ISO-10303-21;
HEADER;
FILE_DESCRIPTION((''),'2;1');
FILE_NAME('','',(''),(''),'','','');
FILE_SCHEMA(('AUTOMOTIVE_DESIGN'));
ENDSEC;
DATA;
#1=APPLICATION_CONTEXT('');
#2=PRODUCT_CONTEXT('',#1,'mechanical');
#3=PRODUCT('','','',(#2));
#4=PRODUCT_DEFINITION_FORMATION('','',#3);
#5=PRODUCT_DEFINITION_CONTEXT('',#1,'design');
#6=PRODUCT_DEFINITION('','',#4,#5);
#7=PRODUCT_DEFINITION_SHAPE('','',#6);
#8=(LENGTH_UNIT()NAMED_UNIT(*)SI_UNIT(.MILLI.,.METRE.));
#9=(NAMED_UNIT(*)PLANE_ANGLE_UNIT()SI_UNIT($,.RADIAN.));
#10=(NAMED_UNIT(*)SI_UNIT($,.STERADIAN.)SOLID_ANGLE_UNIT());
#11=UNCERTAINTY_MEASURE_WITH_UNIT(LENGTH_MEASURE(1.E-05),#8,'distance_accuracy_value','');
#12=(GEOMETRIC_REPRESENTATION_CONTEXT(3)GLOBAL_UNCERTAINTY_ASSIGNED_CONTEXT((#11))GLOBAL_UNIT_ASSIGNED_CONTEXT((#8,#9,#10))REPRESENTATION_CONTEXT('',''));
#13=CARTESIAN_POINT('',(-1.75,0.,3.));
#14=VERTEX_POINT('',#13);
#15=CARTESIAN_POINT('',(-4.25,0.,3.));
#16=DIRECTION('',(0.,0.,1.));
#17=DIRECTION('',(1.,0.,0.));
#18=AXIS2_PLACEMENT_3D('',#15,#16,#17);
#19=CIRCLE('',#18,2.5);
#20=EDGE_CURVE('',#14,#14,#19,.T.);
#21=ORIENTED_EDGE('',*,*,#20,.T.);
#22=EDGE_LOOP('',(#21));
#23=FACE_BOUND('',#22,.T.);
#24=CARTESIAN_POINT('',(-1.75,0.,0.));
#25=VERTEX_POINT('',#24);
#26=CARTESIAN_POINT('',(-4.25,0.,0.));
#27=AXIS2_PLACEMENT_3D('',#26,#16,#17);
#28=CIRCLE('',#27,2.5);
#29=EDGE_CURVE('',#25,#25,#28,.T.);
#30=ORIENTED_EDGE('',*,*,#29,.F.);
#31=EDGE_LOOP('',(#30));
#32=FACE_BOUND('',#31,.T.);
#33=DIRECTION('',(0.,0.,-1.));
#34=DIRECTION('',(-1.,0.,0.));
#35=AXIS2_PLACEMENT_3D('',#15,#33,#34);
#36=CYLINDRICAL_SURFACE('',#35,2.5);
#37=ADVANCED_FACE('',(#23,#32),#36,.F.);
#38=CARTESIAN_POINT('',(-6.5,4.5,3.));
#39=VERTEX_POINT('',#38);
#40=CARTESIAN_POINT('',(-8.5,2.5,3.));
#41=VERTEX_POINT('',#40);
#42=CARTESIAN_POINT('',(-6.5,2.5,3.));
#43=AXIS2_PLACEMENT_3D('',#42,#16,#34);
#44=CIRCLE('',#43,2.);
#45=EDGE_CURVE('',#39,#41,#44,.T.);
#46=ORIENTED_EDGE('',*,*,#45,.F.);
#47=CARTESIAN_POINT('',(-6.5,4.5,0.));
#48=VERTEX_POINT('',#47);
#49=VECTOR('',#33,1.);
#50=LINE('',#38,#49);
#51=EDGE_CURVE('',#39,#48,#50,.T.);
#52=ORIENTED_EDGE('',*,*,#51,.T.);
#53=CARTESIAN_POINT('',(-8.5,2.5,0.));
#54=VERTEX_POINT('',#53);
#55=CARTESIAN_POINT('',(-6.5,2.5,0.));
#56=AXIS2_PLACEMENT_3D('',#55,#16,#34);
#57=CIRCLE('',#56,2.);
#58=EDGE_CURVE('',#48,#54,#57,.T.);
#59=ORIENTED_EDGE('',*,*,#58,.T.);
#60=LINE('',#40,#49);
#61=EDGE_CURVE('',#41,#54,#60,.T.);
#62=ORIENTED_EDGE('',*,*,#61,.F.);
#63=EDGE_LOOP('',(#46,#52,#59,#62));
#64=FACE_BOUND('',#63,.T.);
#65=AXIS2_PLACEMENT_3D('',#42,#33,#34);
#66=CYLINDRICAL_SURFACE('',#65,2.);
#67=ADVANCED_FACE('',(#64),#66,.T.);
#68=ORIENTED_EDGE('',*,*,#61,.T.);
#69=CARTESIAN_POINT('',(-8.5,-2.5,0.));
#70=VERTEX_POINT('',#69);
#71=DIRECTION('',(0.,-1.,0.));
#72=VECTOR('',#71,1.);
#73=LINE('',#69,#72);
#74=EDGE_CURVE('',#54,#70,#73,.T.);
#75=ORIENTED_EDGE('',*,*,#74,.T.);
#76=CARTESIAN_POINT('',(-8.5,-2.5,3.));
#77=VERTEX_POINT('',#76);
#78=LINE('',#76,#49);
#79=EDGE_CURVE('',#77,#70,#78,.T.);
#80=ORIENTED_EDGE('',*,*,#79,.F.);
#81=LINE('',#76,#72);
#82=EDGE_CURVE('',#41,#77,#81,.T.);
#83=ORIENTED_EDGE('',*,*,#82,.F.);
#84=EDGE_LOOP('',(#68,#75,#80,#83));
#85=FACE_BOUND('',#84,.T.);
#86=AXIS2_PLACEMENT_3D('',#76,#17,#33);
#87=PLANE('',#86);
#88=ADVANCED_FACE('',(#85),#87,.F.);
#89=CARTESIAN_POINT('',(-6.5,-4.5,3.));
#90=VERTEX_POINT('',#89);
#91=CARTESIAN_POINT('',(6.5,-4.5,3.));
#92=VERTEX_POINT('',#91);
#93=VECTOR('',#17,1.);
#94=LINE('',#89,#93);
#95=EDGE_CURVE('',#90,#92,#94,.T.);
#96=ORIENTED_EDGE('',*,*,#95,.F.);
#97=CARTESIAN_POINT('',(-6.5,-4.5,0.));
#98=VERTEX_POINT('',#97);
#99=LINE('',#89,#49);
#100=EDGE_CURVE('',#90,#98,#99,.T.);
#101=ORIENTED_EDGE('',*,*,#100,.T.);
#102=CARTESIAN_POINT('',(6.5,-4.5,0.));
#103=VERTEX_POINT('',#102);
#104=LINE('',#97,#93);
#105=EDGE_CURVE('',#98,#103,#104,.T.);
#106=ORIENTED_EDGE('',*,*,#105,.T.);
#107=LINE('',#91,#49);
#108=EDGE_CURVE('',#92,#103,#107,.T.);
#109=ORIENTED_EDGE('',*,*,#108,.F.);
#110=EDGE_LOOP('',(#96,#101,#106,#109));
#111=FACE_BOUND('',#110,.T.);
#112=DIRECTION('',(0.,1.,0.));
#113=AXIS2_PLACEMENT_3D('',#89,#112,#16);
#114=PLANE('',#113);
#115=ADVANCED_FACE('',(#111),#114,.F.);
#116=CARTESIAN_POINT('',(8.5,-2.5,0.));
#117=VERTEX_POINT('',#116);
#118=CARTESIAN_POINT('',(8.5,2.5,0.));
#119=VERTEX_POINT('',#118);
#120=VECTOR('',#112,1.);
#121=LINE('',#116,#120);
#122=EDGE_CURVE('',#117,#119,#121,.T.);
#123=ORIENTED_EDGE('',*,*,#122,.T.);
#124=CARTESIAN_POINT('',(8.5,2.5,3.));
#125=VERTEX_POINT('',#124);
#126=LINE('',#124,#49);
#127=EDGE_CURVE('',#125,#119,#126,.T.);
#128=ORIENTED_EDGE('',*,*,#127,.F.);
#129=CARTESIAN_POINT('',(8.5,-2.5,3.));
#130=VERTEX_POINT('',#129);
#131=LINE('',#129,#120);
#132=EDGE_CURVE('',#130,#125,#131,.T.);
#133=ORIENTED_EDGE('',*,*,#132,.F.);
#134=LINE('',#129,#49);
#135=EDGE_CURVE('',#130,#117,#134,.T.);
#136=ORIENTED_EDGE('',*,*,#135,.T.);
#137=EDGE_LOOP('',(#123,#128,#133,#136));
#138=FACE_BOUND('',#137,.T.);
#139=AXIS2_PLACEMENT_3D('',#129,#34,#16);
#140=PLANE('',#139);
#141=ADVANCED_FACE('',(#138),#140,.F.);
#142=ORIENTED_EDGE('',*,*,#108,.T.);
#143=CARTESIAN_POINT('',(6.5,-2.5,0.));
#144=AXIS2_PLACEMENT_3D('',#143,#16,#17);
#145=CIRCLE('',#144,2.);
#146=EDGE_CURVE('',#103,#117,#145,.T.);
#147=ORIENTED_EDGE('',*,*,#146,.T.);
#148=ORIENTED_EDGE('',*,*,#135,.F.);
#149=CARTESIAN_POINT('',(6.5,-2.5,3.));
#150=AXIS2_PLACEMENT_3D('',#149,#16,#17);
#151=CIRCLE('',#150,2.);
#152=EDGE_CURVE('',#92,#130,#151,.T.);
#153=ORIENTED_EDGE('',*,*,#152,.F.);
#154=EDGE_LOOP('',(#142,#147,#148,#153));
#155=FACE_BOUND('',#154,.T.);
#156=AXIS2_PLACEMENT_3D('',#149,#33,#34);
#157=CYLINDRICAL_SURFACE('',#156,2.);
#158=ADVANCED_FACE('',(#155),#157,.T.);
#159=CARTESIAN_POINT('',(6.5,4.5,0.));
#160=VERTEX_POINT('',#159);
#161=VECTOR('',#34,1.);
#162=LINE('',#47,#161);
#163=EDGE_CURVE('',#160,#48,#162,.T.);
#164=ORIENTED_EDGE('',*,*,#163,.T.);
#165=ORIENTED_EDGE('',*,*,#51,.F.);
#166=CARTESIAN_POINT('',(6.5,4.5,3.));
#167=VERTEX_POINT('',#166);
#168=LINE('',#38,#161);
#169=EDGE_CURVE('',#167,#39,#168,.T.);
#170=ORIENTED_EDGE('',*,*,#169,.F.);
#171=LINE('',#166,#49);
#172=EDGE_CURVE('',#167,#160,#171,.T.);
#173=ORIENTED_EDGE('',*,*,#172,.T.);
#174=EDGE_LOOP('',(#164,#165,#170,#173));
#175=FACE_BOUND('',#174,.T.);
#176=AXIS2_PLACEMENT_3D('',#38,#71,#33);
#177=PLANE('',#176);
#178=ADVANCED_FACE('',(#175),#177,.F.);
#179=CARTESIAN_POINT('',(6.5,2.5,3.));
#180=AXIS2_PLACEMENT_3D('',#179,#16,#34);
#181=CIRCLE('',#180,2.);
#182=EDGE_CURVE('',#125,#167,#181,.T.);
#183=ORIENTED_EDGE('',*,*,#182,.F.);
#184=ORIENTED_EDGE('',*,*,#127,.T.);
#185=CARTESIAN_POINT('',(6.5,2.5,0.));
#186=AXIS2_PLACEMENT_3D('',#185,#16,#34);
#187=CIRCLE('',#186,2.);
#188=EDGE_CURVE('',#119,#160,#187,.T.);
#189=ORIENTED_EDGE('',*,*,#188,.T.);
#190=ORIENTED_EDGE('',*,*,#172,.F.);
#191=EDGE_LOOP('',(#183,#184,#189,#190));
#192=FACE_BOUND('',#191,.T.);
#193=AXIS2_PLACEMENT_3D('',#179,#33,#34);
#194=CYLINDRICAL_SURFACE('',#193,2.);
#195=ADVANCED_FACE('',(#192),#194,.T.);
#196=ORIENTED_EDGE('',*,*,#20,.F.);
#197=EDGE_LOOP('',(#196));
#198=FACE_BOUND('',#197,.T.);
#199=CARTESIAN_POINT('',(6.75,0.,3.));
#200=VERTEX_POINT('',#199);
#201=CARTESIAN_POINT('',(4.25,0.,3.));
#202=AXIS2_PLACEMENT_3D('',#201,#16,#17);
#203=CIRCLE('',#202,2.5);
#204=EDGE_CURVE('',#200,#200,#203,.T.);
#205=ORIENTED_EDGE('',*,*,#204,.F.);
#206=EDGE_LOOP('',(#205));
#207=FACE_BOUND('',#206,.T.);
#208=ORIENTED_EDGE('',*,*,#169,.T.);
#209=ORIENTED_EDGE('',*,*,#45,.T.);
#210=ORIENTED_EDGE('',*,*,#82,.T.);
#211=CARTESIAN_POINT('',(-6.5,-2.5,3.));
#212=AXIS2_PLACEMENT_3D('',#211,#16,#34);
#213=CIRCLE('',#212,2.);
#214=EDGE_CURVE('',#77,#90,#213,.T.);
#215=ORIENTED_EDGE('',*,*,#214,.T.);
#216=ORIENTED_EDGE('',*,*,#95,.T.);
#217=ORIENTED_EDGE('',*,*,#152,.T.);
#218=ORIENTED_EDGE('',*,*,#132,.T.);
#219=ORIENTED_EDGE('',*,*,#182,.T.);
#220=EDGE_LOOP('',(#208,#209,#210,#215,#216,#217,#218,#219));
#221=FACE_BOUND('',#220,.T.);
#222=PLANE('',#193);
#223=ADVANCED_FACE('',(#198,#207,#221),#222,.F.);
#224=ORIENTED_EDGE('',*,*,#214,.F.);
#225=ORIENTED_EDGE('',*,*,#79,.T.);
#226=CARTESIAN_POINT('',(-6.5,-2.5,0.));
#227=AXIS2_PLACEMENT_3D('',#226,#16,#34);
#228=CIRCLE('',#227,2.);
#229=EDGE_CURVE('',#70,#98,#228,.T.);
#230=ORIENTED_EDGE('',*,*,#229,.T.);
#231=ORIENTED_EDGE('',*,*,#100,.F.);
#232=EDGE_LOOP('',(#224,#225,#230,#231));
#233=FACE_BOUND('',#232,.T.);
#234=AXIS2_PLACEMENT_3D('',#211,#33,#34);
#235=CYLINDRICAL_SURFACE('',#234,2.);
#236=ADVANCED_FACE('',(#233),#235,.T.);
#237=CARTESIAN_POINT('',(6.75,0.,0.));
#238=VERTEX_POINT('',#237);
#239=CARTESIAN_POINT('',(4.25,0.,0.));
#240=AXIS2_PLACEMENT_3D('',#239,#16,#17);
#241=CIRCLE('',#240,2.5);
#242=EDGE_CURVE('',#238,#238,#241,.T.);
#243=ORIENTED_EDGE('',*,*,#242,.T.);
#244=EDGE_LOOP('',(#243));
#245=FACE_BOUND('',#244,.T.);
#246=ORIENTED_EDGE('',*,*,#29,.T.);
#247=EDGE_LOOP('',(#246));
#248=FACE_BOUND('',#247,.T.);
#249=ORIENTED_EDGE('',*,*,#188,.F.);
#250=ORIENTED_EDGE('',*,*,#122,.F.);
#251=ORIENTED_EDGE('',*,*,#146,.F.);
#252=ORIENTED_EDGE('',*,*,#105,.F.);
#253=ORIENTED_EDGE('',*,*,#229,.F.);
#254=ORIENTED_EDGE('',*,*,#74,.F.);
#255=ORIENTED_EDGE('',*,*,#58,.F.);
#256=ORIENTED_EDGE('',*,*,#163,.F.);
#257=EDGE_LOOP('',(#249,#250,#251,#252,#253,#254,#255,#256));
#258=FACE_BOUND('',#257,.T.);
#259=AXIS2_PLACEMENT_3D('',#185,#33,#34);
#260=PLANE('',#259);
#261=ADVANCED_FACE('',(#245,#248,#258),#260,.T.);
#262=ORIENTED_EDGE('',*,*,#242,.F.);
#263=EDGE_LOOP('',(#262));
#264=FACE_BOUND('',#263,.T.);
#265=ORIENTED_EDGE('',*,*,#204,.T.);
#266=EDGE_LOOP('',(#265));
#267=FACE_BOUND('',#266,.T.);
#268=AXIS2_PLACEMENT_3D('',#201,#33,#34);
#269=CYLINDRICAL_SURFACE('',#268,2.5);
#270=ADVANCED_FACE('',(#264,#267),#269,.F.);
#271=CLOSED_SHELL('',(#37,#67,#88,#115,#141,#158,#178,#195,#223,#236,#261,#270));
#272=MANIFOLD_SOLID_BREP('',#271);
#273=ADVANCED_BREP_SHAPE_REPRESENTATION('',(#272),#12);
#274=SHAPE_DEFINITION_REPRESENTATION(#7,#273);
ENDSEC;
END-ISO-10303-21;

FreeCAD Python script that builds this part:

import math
import FreeCAD as App
import Part
import Sketcher

doc = App.newDocument("Part")
body = doc.addObject("PartDesign::Body", "Body")

sketch1 = body.newObject("Sketcher::SketchObject", "Sketch")
sketch1.AttachmentSupport = (doc.getObject("XY_Plane"), [""])
sketch1.MapMode = "FlatFace"
sketch1.addGeometry([
    Part.LineSegment(App.Vector(-6.5, -4.5, 0), App.Vector(6.5, -4.5, 0)),
    Part.ArcOfCircle(Part.Circle(App.Vector(6.5, -2.5, 0), App.Vector(0, 0, 1), 2), math.radians(-90), math.radians(0)),
    Part.LineSegment(App.Vector(8.5, -2.5, 0), App.Vector(8.5, 2.5, 0)),
    Part.ArcOfCircle(Part.Circle(App.Vector(6.5, 2.5, 0), App.Vector(0, 0, 1), 2), math.radians(0), math.radians(90)),
    Part.LineSegment(App.Vector(6.5, 4.5, 0), App.Vector(-6.5, 4.5, 0)),
    Part.ArcOfCircle(Part.Circle(App.Vector(-6.5, 2.5, 0), App.Vector(0, 0, 1), 2), math.radians(90), math.radians(180)),
    Part.LineSegment(App.Vector(-8.5, 2.5, 0), App.Vector(-8.5, -2.5, 0)),
    Part.ArcOfCircle(Part.Circle(App.Vector(-6.5, -2.5, 0), App.Vector(0, 0, 1), 2), math.radians(-180), math.radians(-90)),
    Part.Circle(App.Vector(-4.2, 0, 0), App.Vector(0, 0, 1), 2.5),
    Part.Circle(App.Vector(4.2, 0, 0), App.Vector(0, 0, 1), 2.5),
], False)
sketch1.addConstraint([
    Sketcher.Constraint("Tangent", 0, 2, 1, 1),
    Sketcher.Constraint("Tangent", 1, 2, 2, 1),
    Sketcher.Constraint("Tangent", 2, 2, 3, 1),
    Sketcher.Constraint("Tangent", 3, 2, 4, 1),
    Sketcher.Constraint("Tangent", 4, 2, 5, 1),
    Sketcher.Constraint("Tangent", 5, 2, 6, 1),
    Sketcher.Constraint("Tangent", 6, 2, 7, 1),
    Sketcher.Constraint("Tangent", 7, 2, 0, 1),
    Sketcher.Constraint("Horizontal", 0),
    Sketcher.Constraint("Vertical", 2),
    Sketcher.Constraint("Horizontal", 4),
    Sketcher.Constraint("Vertical", 6),
    Sketcher.Constraint("Equal", 1, 3),
    Sketcher.Constraint("Equal", 3, 5),
    Sketcher.Constraint("Equal", 5, 7),
    Sketcher.Constraint("Equal", 8, 9),
    Sketcher.Constraint("Symmetric", 1, 3, 5, 3, -1, 1),
    Sketcher.Constraint("Symmetric", 8, 3, 9, 3, -1, 1),
    Sketcher.Constraint("PointOnObject", 8, 3, -1),
    Sketcher.Constraint("Diameter", 8, 5.0),
    Sketcher.Constraint("Radius", 1, 2.0),
    Sketcher.Constraint("DistanceX", 0, 1, 0, 2, 13.0),
    Sketcher.Constraint("DistanceY", 2, 1, 2, 2, 5.0),
    Sketcher.Constraint("DistanceX", 8, 3, 9, 3, 8.5),
])
pad1 = body.newObject("PartDesign::Pad", "Pad")
pad1.Profile = sketch1
pad1.Length = 3

doc.recompute()
